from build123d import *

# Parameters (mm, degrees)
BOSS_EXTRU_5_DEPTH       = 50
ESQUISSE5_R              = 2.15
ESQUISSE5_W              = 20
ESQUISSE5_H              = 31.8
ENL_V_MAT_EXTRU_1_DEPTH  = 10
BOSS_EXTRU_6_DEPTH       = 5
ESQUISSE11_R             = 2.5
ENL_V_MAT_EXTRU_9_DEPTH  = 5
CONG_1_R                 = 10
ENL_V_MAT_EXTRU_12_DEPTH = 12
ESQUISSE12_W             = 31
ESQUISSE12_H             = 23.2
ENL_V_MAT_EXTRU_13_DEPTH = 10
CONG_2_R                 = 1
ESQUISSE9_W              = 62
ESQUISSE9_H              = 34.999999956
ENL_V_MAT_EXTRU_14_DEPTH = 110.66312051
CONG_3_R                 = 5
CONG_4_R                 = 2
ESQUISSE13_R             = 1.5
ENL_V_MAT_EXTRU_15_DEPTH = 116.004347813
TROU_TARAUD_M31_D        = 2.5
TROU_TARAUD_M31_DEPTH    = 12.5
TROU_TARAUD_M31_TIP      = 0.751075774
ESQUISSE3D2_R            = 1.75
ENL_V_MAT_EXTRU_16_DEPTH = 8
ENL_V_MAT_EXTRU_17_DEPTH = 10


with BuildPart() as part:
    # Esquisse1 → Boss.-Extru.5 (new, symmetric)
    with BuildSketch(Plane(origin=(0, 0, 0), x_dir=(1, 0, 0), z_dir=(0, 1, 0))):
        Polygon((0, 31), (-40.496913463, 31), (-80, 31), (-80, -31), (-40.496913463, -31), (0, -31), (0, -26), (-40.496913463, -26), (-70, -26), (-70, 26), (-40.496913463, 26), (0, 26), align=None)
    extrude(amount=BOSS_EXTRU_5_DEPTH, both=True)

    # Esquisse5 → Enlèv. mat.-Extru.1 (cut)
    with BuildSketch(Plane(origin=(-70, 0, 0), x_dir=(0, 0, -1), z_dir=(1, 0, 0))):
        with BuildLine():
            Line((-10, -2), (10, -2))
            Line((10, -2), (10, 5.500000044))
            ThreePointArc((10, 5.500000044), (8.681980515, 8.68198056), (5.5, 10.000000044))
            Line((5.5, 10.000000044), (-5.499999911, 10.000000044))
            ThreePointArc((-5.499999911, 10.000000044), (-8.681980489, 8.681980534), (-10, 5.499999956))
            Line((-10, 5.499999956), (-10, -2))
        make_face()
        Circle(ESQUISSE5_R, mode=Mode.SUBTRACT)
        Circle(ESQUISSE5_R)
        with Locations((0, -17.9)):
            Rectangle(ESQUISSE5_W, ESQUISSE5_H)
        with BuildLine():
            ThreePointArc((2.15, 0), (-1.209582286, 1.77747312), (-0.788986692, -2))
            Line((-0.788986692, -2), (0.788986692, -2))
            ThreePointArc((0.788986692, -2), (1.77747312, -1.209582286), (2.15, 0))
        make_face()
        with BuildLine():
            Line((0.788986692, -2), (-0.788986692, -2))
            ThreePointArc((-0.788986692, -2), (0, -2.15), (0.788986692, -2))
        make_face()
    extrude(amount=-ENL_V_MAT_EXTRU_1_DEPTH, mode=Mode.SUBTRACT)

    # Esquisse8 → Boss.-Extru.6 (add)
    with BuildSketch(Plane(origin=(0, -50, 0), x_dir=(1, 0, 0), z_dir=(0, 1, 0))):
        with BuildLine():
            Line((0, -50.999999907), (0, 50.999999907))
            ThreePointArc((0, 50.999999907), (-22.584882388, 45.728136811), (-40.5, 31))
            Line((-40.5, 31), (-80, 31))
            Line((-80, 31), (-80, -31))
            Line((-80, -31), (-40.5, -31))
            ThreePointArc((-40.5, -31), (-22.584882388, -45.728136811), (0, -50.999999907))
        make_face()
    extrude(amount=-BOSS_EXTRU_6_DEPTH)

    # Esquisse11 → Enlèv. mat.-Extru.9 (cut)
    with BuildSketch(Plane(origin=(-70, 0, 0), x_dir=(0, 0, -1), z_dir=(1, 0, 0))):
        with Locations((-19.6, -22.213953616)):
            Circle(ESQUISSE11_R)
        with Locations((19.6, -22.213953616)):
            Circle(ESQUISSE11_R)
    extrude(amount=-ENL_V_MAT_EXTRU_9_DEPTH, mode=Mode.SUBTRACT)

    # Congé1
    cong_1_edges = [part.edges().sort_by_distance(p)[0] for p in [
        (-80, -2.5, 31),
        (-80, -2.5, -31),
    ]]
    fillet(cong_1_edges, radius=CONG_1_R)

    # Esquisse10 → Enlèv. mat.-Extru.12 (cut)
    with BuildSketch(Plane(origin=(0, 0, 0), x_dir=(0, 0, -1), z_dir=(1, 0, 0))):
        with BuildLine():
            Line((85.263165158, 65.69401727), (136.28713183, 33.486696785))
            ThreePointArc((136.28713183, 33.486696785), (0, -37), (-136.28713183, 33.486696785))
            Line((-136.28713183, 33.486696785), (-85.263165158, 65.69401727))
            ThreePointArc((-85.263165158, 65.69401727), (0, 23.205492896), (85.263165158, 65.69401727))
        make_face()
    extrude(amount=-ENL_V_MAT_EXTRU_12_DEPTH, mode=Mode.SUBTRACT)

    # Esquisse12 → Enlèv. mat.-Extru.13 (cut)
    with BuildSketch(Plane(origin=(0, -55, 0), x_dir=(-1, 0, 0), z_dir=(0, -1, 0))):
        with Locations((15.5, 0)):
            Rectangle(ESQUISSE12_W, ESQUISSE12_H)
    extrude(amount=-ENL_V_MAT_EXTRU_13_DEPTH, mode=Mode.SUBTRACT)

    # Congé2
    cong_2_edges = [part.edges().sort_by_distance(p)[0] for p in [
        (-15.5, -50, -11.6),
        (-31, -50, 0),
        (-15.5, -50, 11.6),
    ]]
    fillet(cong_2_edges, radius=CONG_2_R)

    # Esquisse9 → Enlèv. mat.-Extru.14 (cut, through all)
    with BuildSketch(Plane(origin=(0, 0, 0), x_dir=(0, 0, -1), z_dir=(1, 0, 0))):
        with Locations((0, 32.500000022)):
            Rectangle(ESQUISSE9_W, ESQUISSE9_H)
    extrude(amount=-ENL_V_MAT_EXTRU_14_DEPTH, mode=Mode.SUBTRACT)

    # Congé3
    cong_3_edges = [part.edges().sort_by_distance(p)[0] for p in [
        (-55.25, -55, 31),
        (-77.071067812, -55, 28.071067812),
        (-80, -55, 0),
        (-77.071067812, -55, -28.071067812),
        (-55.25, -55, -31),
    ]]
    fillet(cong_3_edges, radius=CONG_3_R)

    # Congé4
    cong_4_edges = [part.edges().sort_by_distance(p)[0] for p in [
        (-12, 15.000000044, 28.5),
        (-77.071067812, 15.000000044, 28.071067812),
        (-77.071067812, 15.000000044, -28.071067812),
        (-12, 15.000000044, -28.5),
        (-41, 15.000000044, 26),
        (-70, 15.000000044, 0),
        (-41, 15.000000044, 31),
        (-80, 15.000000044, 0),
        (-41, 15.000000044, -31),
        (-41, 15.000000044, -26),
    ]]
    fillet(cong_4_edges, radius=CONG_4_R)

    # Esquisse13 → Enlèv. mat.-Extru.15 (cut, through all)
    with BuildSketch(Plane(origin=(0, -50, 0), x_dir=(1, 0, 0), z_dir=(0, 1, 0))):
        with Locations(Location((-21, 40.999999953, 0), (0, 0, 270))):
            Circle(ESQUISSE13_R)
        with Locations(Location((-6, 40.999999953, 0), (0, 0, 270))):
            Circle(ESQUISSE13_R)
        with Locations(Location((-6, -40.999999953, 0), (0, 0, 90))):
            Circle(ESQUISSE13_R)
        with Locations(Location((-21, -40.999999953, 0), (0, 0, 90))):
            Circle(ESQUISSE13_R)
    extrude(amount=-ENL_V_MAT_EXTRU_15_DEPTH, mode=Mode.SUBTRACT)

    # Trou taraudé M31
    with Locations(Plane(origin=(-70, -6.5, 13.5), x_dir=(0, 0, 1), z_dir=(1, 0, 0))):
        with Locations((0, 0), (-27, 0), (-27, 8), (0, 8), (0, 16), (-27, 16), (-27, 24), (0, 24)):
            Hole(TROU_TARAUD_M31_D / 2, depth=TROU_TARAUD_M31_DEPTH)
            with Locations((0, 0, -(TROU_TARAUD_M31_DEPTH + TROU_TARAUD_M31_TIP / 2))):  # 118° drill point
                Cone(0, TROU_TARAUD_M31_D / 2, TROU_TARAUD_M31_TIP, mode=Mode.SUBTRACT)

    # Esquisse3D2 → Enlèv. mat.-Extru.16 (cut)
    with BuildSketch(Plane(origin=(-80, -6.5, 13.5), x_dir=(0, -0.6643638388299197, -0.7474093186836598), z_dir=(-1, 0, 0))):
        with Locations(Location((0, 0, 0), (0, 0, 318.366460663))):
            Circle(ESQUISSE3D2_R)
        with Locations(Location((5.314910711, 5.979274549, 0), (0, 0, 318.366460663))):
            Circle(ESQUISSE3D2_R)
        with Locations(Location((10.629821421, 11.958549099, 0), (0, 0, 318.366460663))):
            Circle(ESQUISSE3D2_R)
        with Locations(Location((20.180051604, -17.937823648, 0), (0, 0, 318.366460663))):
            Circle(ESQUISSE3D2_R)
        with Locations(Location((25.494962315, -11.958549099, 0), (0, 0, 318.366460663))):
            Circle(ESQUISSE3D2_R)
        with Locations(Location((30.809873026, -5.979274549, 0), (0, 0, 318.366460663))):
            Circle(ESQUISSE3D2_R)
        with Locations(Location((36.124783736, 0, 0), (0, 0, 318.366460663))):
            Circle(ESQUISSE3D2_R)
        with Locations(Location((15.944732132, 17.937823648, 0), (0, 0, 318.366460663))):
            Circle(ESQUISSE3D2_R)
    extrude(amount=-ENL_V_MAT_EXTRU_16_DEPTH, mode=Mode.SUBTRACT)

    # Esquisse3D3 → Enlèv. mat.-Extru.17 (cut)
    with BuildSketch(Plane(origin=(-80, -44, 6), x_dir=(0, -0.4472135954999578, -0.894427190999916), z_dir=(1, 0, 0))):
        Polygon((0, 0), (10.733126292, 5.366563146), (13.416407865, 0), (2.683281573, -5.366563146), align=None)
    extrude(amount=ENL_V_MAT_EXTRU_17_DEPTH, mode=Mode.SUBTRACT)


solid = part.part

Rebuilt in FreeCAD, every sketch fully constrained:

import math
import FreeCAD as App
import Part
import Sketcher

V = App.Vector
Q = App.Units.Quantity


def edges_at(feature, points):
    """Names of the edges that pass closest to the given points."""
    edges = feature.Shape.Edges
    near = lambda p: min(range(len(edges)), key=lambda i: edges[i].distToShape(Part.Vertex(*p))[0])
    return sorted({f"Edge{near(p) + 1}" for p in points})


def add_polygon(sketch, points):
    """Adds a closed chain of lines whose ends are joined by coincident constraints."""
    first, n = sketch.GeometryCount, len(points)
    for a, b in zip(points, points[1:] + points[:1]):
        sketch.addGeometry(Part.LineSegment(App.Vector(*a, 0), App.Vector(*b, 0)), False)
    for i in range(n):
        sketch.addConstraint(Sketcher.Constraint("Coincident", first + i, 2, first + (i + 1) % n, 1))

doc = App.newDocument("Part")
body = doc.addObject("PartDesign::Body", "Body")

sketch1 = doc.addObject("Sketcher::SketchObject", "Sketch")
body.addObject(sketch1)
sketch1.AttachmentSupport = (doc.XZ_Plane, [""])
sketch1.MapMode = "FlatFace"
add_polygon(sketch1, [(0, -31), (-80, -31), (-80, 31), (0, 31), (0, 26), (-70, 26), (-70, -26), (0, -26)])
sketch1.addConstraint([
    Sketcher.Constraint("Horizontal", 0),
    Sketcher.Constraint("Vertical", 1),
    Sketcher.Constraint("Horizontal", 2),
    Sketcher.Constraint("Vertical", 3),
    Sketcher.Constraint("Horizontal", 4),
    Sketcher.Constraint("Vertical", 5),
    Sketcher.Constraint("Horizontal", 6),
    Sketcher.Constraint("Vertical", 7),
    Sketcher.Constraint("Symmetric", 3, 2, 6, 2, -1, 1),
    Sketcher.Constraint("Symmetric", 2, 2, 7, 2, -1),
    Sketcher.Constraint("DistanceX", 0, 2, 0, 1, Q("80 mm")),
    Sketcher.Constraint("DistanceX", 4, 2, 4, 1, Q("70 mm")),
    Sketcher.Constraint("DistanceY", 1, 1, 1, 2, Q("62 mm")),
    Sketcher.Constraint("DistanceY", 3, 2, 3, 1, Q("5 mm")),
])
pad1 = doc.addObject("PartDesign::Pad", "Pad")
body.addObject(pad1)
pad1.Profile = sketch1
pad1.Length = 100
pad1.Midplane = True

sketch2 = doc.addObject("Sketcher::SketchObject", "Sketch001")
body.addObject(sketch2)
sketch2.AttachmentSupport = (doc.YZ_Plane, [""])
sketch2.MapMode = "FlatFace"
sketch2.AttachmentOffset = App.Placement(V(0, 0, -70), App.Rotation())
sketch2.addGeometry([
    Part.ArcOfCircle(Part.Circle(V(5.5, 5.5, 0), V(0, 0, 1), 4.5), math.radians(0), math.radians(90)),
    Part.LineSegment(V(5.5, 10, 0), V(-33.8, 10, 0)),
    Part.LineSegment(V(-33.8, 10, 0), V(-33.8, -10, 0)),
    Part.LineSegment(V(-33.8, -10, 0), V(5.5, -10, 0)),
    Part.ArcOfCircle(Part.Circle(V(5.5, -5.5, 0), V(0, 0, 1), 4.5), math.radians(-90), math.radians(0)),
    Part.LineSegment(V(10, -5.5, 0), V(10, 5.5, 0)),
], False)
sketch2.addConstraint([
    Sketcher.Constraint("Tangent", 0, 2, 1, 1),
    Sketcher.Constraint("Coincident", 1, 2, 2, 1),
    Sketcher.Constraint("Coincident", 2, 2, 3, 1),
    Sketcher.Constraint("Tangent", 3, 2, 4, 1),
    Sketcher.Constraint("Tangent", 4, 2, 5, 1),
    Sketcher.Constraint("Tangent", 5, 2, 0, 1),
    Sketcher.Constraint("Horizontal", 1),
    Sketcher.Constraint("Vertical", 2),
    Sketcher.Constraint("Horizontal", 3),
    Sketcher.Constraint("Vertical", 5),
    Sketcher.Constraint("Equal", 0, 4),
    Sketcher.Constraint("Radius", 0, Q("4.5 mm")),
    Sketcher.Constraint("DistanceY", 2, 2, 2, 1, Q("20 mm")),
    Sketcher.Constraint("DistanceX", 1, 2, 1, 1, Q("39.3 mm")),
    Sketcher.Constraint("DistanceY", -1, 1, 0, 2, Q("10 mm")),
    Sketcher.Constraint("DistanceX", -1, 1, 4, 2, Q("10 mm")),
])
pocket1 = doc.addObject("PartDesign::Pocket", "Pocket")
body.addObject(pocket1)
pocket1.Profile = sketch2
pocket1.Length = 10

sketch3 = doc.addObject("Sketcher::SketchObject", "Sketch002")
body.addObject(sketch3)
sketch3.AttachmentSupport = (doc.XZ_Plane, [""])
sketch3.MapMode = "FlatFace"
sketch3.AttachmentOffset = App.Placement(V(0, 0, 50), App.Rotation())
sketch3.addGeometry([
    Part.LineSegment(V(0, 51, 0), V(0, -51, 0)),
    Part.ArcOfCircle(Part.Circle(V(0, 0, 0), V(0, 0, 1), 51), math.radians(-143), math.radians(-90)),
    Part.LineSegment(V(-40, -31, 0), V(-80, -31, 0)),
    Part.LineSegment(V(-80, -31, 0), V(-80, 31, 0)),
    Part.LineSegment(V(-80, 31, 0), V(-40, 31, 0)),
    Part.ArcOfCircle(Part.Circle(V(0, 0, 0), V(0, 0, 1), 51), math.radians(90), math.radians(143)),
], False)
sketch3.addConstraint([
    Sketcher.Constraint("Coincident", 0, 2, 1, 2),
    Sketcher.Constraint("Coincident", 1, 1, 2, 1),
    Sketcher.Constraint("Coincident", 2, 2, 3, 1),
    Sketcher.Constraint("Coincident", 3, 2, 4, 1),
    Sketcher.Constraint("Coincident", 4, 2, 5, 2),
    Sketcher.Constraint("Coincident", 5, 1, 0, 1),
    Sketcher.Constraint("Vertical", 0),
    Sketcher.Constraint("Horizontal", 2),
    Sketcher.Constraint("Vertical", 3),
    Sketcher.Constraint("Horizontal", 4),
    Sketcher.Constraint("Coincident", 5, 3, 1, 3),
    Sketcher.Constraint("Equal", 1, 5),
    Sketcher.Constraint("Symmetric", 0, 2, 5, 1, -1, 1),
    Sketcher.Constraint("Vertical", 1, 1, 4, 2),
    Sketcher.Constraint("Radius", 1, Q("51 mm")),
    Sketcher.Constraint("DistanceY", 3, 1, 3, 2, Q("62 mm")),
    Sketcher.Constraint("DistanceX", 2, 2, 2, 1, Q("39.5 mm")),
    Sketcher.Constraint("DistanceX", 2, 2, -1, 1, Q("80 mm")),
])
pad2 = doc.addObject("PartDesign::Pad", "Pad001")
body.addObject(pad2)
pad2.Profile = sketch3
pad2.Length = 5

sketch4 = doc.addObject("Sketcher::SketchObject", "Sketch003")
body.addObject(sketch4)
sketch4.AttachmentSupport = (doc.YZ_Plane, [""])
sketch4.MapMode = "FlatFace"
sketch4.AttachmentOffset = App.Placement(V(0, 0, -70), App.Rotation())
sketch4.addGeometry([
    Part.Circle(V(-22.2, 19.6, 0), V(0, 0, 1), 2.5),
    Part.Circle(V(-22.2, -19.6, 0), V(0, 0, 1), 2.5),
], False)
sketch4.addConstraint([
    Sketcher.Constraint("Equal", 0, 1),
    Sketcher.Constraint("Symmetric", 0, 3, 1, 3, -1),
    Sketcher.Constraint("Diameter", 0, Q("5 mm")),
    Sketcher.Constraint("DistanceY", -1, 1, 0, 3, Q("19.6 mm")),
    Sketcher.Constraint("DistanceX", 0, 3, -1, 1, Q("22.213954 mm")),
])
pocket2 = doc.addObject("PartDesign::Pocket", "Pocket001")
body.addObject(pocket2)
pocket2.Profile = sketch4
pocket2.Length = 5
doc.recompute()

fillet = doc.addObject("PartDesign::Fillet", "Fillet")
body.addObject(fillet)
fillet.Base = (pocket2, edges_at(pocket2, [(-80, -2.5, 31), (-80, -2.5, -31)]))
fillet.Radius = 10

sketch5 = doc.addObject("Sketcher::SketchObject", "Sketch004")
body.addObject(sketch5)
sketch5.AttachmentSupport = (doc.YZ_Plane, [""])
sketch5.MapMode = "FlatFace"
sketch5.addGeometry([
    Part.LineSegment(V(33, -136, 0), V(66, -85, 0)),
    Part.ArcOfCircle(Part.Circle(V(130, 0, 0), V(0, 0, 1), 107), math.radians(127), math.radians(233)),
    Part.LineSegment(V(66, 85, 0), V(33, 136, 0)),
    Part.ArcOfCircle(Part.Circle(V(130, 0, 0), V(0, 0, 1), 167), math.radians(125), math.radians(235)),
], False)
sketch5.addConstraint([
    Sketcher.Constraint("Coincident", 0, 2, 1, 2),
    Sketcher.Constraint("Coincident", 1, 1, 2, 1),
    Sketcher.Constraint("Coincident", 2, 2, 3, 1),
    Sketcher.Constraint("Coincident", 3, 2, 0, 1),
    Sketcher.Constraint("Coincident", 3, 3, 1, 3),
    Sketcher.Constraint("Symmetric", 0, 2, 1, 1, -1),
    Sketcher.Constraint("Vertical", 2, 2, 3, 2),
    Sketcher.Constraint("Radius", 3, Q("167 mm")),
    Sketcher.Constraint("DistanceX", -1, 1, 1, 3, Q("130 mm")),
    Sketcher.Constraint("Radius", 1, Q("106.794507 mm")),
    Sketcher.Constraint("DistanceY", -1, 1, 2, 2, Q("136.287132 mm")),
    Sketcher.Constraint("DistanceY", 0, 2, 1, 1, Q("170.52633 mm")),
])
pocket3 = doc.addObject("PartDesign::Pocket", "Pocket002")
body.addObject(pocket3)
pocket3.Profile = sketch5
pocket3.Length = 12

sketch6 = doc.addObject("Sketcher::SketchObject", "Sketch005")
body.addObject(sketch6)
sketch6.AttachmentSupport = (doc.XZ_Plane, [""])
sketch6.MapMode = "FlatFace"
sketch6.AttachmentOffset = App.Placement(V(0, 0, 55), App.Rotation())
add_polygon(sketch6, [(0, -12), (0, 12), (-31, 12), (-31, -12)])
sketch6.addConstraint([
    Sketcher.Constraint("Vertical", 0),
    Sketcher.Constraint("Horizontal", 1),
    Sketcher.Constraint("Vertical", 2),
    Sketcher.Constraint("Horizontal", 3),
    Sketcher.Constraint("Symmetric", 0, 2, 3, 2, -1, 1),
    Sketcher.Constraint("DistanceX", 1, 2, 1, 1, Q("31 mm")),
    Sketcher.Constraint("DistanceY", 0, 1, 0, 2, Q("23.2 mm")),
])
pocket4 = doc.addObject("PartDesign::Pocket", "Pocket003")
body.addObject(pocket4)
pocket4.Profile = sketch6
pocket4.Length = 10
doc.recompute()

fillet2 = doc.addObject("PartDesign::Fillet", "Fillet001")
body.addObject(fillet2)
fillet2.Base = (pocket4, edges_at(pocket4, [(-15.5, -50, -11.6), (-31, -50, 0), (-15.5, -50, 11.6)]))
fillet2.Radius = 1

sketch7 = doc.addObject("Sketcher::SketchObject", "Sketch006")
body.addObject(sketch7)
sketch7.AttachmentSupport = (doc.YZ_Plane, [""])
sketch7.MapMode = "FlatFace"
add_polygon(sketch7, [(50, 31), (15, 31), (15, -31), (50, -31)])
sketch7.addConstraint([
    Sketcher.Constraint("Horizontal", 0),
    Sketcher.Constraint("Vertical", 1),
    Sketcher.Constraint("Horizontal", 2),
    Sketcher.Constraint("Vertical", 3),
    Sketcher.Constraint("DistanceX", 0, 2, 0, 1, Q("35 mm")),
    Sketcher.Constraint("DistanceY", 1, 2, 1, 1, Q("62 mm")),
    Sketcher.Constraint("DistanceX", -1, 1, 0, 2, Q("15 mm")),
    Sketcher.Constraint("DistanceY", -1, 1, 0, 2, Q("31 mm")),
])
pocket5 = doc.addObject("PartDesign::Pocket", "Pocket004")
body.addObject(pocket5)
pocket5.Profile = sketch7
pocket5.Type = "ThroughAll"
doc.recompute()

fillet3 = doc.addObject("PartDesign::Fillet", "Fillet002")
body.addObject(fillet3)
fillet3.Base = (pocket5, edges_at(pocket5, [
    (-55.25, -55, 31),
    (-77.071, -55, 28.071),
    (-80, -55, 0),
    (-77.071, -55, -28.071),
    (-55.25, -55, -31),
]))
fillet3.Radius = 5
doc.recompute()

fillet4 = doc.addObject("PartDesign::Fillet", "Fillet003")
body.addObject(fillet4)
fillet4.Base = (fillet3, edges_at(fillet3, [
    (-12, 15, 28.5),
    (-77.071, 15, 28.071),
    (-77.071, 15, -28.071),
    (-12, 15, -28.5),
    (-41, 15, 26),
    (-70, 15, 0),
    (-41, 15, 31),
    (-80, 15, 0),
    (-41, 15, -31),
    (-41, 15, -26),
]))
fillet4.Radius = 2

sketch8 = doc.addObject("Sketcher::SketchObject", "Sketch007")
body.addObject(sketch8)
sketch8.AttachmentSupport = (doc.XZ_Plane, [""])
sketch8.MapMode = "FlatFace"
sketch8.AttachmentOffset = App.Placement(V(0, 0, 50), App.Rotation())
sketch8.addGeometry([
    Part.Circle(V(-21, -41, 0), V(0, 0, 1), 1.5),
    Part.Circle(V(-6, -41, 0), V(0, 0, 1), 1.5),
    Part.Circle(V(-6, 41, 0), V(0, 0, 1), 1.5),
    Part.Circle(V(-21, 41, 0), V(0, 0, 1), 1.5),
], False)
sketch8.addConstraint([
    Sketcher.Constraint("Equal", 0, 1),
    Sketcher.Constraint("Equal", 1, 2),
    Sketcher.Constraint("Equal", 2, 3),
    Sketcher.Constraint("Symmetric", 1, 3, 2, 3, -1),
    Sketcher.Constraint("Symmetric", 0, 3, 3, 3, -1),
    Sketcher.Constraint("Horizontal", 0, 3, 1, 3),
    Sketcher.Constraint("Diameter", 0, Q("3 mm")),
    Sketcher.Constraint("DistanceX", 0, 3, -1, 1, Q("21 mm")),
    Sketcher.Constraint("DistanceY", 0, 3, -1, 1, Q("41 mm")),
    Sketcher.Constraint("DistanceX", 1, 3, -1, 1, Q("6 mm")),
])
pocket6 = doc.addObject("PartDesign::Pocket", "Pocket005")
body.addObject(pocket6)
pocket6.Profile = sketch8
pocket6.Type = "ThroughAll"
pocket6.Reversed = True

sketch9 = doc.addObject("Sketcher::SketchObject", "Sketch008")
body.addObject(sketch9)
sketch9.AttachmentSupport = (doc.YZ_Plane, [""])
sketch9.MapMode = "FlatFace"
sketch9.AttachmentOffset = App.Placement(V(0, 0, -70), App.Rotation())
sketch9.addGeometry([
    Part.Circle(V(-6.5, 13.5, 0), V(0, 0, 1), 1.2),
    Part.Circle(V(-6.5, -13.5, 0), V(0, 0, 1), 1.2),
    Part.Circle(V(-14.5, -13.5, 0), V(0, 0, 1), 1.2),
    Part.Circle(V(-14.5, 13.5, 0), V(0, 0, 1), 1.2),
    Part.Circle(V(-22.5, 13.5, 0), V(0, 0, 1), 1.2),
    Part.Circle(V(-22.5, -13.5, 0), V(0, 0, 1), 1.2),
    Part.Circle(V(-30.5, -13.5, 0), V(0, 0, 1), 1.2),
    Part.Circle(V(-30.5, 13.5, 0), V(0, 0, 1), 1.2),
], False)
sketch9.addConstraint([
    Sketcher.Constraint("Equal", 0, 1),
    Sketcher.Constraint("Equal", 1, 2),
    Sketcher.Constraint("Equal", 2, 3),
    Sketcher.Constraint("Equal", 3, 4),
    Sketcher.Constraint("Equal", 4, 5),
    Sketcher.Constraint("Equal", 5, 6),
    Sketcher.Constraint("Equal", 6, 7),
    Sketcher.Constraint("Symmetric", 0, 3, 1, 3, -1),
    Sketcher.Constraint("Symmetric", 2, 3, 3, 3, -1),
    Sketcher.Constraint("Symmetric", 4, 3, 5, 3, -1),
    Sketcher.Constraint("Symmetric", 6, 3, 7, 3, -1),
    Sketcher.Constraint("Horizontal", 1, 3, 2, 3),
    Sketcher.Constraint("Horizontal", 3, 3, 4, 3),
    Sketcher.Constraint("Horizontal", 5, 3, 6, 3),
    Sketcher.Constraint("Diameter", 0, Q("2.5 mm")),
    Sketcher.Constraint("DistanceY", 1, 3, 0, 3, Q("27 mm")),
    Sketcher.Constraint("DistanceX", 2, 3, 1, 3, Q("8 mm")),
    Sketcher.Constraint("DistanceX", 4, 3, 3, 3, Q("8 mm")),
    Sketcher.Constraint("DistanceX", 6, 3, 5, 3, Q("8 mm")),
    Sketcher.Constraint("DistanceX", 0, 3, -1, 1, Q("6.5 mm")),
])
doc.recompute()
hole = doc.addObject("PartDesign::Hole", "Hole")
body.addObject(hole)
hole.Profile = sketch9
hole.ThreadType = "None"
hole.Diameter = 2.5
hole.DepthType = "Dimension"
hole.Depth = 12.5
hole.DrillPoint = "Angled"
hole.DrillPointAngle = 118

sketch10 = doc.addObject("Sketcher::SketchObject", "Sketch009")
body.addObject(sketch10)
sketch10.AttachmentSupport = (doc.YZ_Plane, [""])
sketch10.MapMode = "FlatFace"
sketch10.AttachmentOffset = App.Placement(V(0, 0, -80), App.Rotation())
sketch10.addGeometry([
    Part.Circle(V(-6.5, 13.5, 0), V(0, 0, 1), 1.8),
    Part.Circle(V(-14.5, 13.5, 0), V(0, 0, 1), 1.8),
    Part.Circle(V(-22.5, 13.5, 0), V(0, 0, 1), 1.8),
    Part.Circle(V(-6.5, -13.5, 0), V(0, 0, 1), 1.8),
    Part.Circle(V(-14.5, -13.5, 0), V(0, 0, 1), 1.8),
    Part.Circle(V(-22.5, -13.5, 0), V(0, 0, 1), 1.8),
    Part.Circle(V(-30.5, -13.5, 0), V(0, 0, 1), 1.8),
    Part.Circle(V(-30.5, 13.5, 0), V(0, 0, 1), 1.8),
], False)
sketch10.addConstraint([
    Sketcher.Constraint("Equal", 0, 1),
    Sketcher.Constraint("Equal", 1, 2),
    Sketcher.Constraint("Equal", 2, 3),
    Sketcher.Constraint("Equal", 3, 4),
    Sketcher.Constraint("Equal", 4, 5),
    Sketcher.Constraint("Equal", 5, 6),
    Sketcher.Constraint("Equal", 6, 7),
    Sketcher.Constraint("Symmetric", 0, 3, 3, 3, -1),
    Sketcher.Constraint("Symmetric", 1, 3, 4, 3, -1),
    Sketcher.Constraint("Symmetric", 2, 3, 5, 3, -1),
    Sketcher.Constraint("Symmetric", 6, 3, 7, 3, -1),
    Sketcher.Constraint("Horizontal", 0, 3, 1, 3),
    Sketcher.Constraint("Horizontal", 1, 3, 2, 3),
    Sketcher.Constraint("Horizontal", 5, 3, 6, 3),
    Sketcher.Constraint("Diameter", 0, Q("3.5 mm")),
    Sketcher.Constraint("DistanceX", 1, 3, 0, 3, Q("8 mm")),
    Sketcher.Constraint("DistanceX", 2, 3, 1, 3, Q("8 mm")),
    Sketcher.Constraint("DistanceY", 3, 3, 0, 3, Q("27 mm")),
    Sketcher.Constraint("DistanceX", 6, 3, 5, 3, Q("8 mm")),
    Sketcher.Constraint("DistanceX", 0, 3, -1, 1, Q("6.5 mm")),
])
pocket7 = doc.addObject("PartDesign::Pocket", "Pocket006")
body.addObject(pocket7)
pocket7.Profile = sketch10
pocket7.Length = 8
pocket7.Reversed = True

sketch11 = doc.addObject("Sketcher::SketchObject", "Sketch010")
body.addObject(sketch11)
sketch11.AttachmentSupport = (doc.YZ_Plane, [""])
sketch11.MapMode = "FlatFace"
sketch11.AttachmentOffset = App.Placement(V(0, 0, -80), App.Rotation())
add_polygon(sketch11, [(-44, -6), (-44, 6), (-50, 6), (-50, -6)])
sketch11.addConstraint([
    Sketcher.Constraint("Vertical", 0),
    Sketcher.Constraint("Horizontal", 1),
    Sketcher.Constraint("Vertical", 2),
    Sketcher.Constraint("Horizontal", 3),
    Sketcher.Constraint("DistanceX", 1, 2, 1, 1, Q("6 mm")),
    Sketcher.Constraint("DistanceY", 0, 1, 0, 2, Q("12 mm")),
    Sketcher.Constraint("DistanceX", 0, 2, -1, 1, Q("44 mm")),
    Sketcher.Constraint("DistanceY", -1, 1, 0, 2, Q("6 mm")),
])
pocket8 = doc.addObject("PartDesign::Pocket", "Pocket007")
body.addObject(pocket8)
pocket8.Profile = sketch11
pocket8.Length = 10
pocket8.Reversed = True

doc.recompute()
